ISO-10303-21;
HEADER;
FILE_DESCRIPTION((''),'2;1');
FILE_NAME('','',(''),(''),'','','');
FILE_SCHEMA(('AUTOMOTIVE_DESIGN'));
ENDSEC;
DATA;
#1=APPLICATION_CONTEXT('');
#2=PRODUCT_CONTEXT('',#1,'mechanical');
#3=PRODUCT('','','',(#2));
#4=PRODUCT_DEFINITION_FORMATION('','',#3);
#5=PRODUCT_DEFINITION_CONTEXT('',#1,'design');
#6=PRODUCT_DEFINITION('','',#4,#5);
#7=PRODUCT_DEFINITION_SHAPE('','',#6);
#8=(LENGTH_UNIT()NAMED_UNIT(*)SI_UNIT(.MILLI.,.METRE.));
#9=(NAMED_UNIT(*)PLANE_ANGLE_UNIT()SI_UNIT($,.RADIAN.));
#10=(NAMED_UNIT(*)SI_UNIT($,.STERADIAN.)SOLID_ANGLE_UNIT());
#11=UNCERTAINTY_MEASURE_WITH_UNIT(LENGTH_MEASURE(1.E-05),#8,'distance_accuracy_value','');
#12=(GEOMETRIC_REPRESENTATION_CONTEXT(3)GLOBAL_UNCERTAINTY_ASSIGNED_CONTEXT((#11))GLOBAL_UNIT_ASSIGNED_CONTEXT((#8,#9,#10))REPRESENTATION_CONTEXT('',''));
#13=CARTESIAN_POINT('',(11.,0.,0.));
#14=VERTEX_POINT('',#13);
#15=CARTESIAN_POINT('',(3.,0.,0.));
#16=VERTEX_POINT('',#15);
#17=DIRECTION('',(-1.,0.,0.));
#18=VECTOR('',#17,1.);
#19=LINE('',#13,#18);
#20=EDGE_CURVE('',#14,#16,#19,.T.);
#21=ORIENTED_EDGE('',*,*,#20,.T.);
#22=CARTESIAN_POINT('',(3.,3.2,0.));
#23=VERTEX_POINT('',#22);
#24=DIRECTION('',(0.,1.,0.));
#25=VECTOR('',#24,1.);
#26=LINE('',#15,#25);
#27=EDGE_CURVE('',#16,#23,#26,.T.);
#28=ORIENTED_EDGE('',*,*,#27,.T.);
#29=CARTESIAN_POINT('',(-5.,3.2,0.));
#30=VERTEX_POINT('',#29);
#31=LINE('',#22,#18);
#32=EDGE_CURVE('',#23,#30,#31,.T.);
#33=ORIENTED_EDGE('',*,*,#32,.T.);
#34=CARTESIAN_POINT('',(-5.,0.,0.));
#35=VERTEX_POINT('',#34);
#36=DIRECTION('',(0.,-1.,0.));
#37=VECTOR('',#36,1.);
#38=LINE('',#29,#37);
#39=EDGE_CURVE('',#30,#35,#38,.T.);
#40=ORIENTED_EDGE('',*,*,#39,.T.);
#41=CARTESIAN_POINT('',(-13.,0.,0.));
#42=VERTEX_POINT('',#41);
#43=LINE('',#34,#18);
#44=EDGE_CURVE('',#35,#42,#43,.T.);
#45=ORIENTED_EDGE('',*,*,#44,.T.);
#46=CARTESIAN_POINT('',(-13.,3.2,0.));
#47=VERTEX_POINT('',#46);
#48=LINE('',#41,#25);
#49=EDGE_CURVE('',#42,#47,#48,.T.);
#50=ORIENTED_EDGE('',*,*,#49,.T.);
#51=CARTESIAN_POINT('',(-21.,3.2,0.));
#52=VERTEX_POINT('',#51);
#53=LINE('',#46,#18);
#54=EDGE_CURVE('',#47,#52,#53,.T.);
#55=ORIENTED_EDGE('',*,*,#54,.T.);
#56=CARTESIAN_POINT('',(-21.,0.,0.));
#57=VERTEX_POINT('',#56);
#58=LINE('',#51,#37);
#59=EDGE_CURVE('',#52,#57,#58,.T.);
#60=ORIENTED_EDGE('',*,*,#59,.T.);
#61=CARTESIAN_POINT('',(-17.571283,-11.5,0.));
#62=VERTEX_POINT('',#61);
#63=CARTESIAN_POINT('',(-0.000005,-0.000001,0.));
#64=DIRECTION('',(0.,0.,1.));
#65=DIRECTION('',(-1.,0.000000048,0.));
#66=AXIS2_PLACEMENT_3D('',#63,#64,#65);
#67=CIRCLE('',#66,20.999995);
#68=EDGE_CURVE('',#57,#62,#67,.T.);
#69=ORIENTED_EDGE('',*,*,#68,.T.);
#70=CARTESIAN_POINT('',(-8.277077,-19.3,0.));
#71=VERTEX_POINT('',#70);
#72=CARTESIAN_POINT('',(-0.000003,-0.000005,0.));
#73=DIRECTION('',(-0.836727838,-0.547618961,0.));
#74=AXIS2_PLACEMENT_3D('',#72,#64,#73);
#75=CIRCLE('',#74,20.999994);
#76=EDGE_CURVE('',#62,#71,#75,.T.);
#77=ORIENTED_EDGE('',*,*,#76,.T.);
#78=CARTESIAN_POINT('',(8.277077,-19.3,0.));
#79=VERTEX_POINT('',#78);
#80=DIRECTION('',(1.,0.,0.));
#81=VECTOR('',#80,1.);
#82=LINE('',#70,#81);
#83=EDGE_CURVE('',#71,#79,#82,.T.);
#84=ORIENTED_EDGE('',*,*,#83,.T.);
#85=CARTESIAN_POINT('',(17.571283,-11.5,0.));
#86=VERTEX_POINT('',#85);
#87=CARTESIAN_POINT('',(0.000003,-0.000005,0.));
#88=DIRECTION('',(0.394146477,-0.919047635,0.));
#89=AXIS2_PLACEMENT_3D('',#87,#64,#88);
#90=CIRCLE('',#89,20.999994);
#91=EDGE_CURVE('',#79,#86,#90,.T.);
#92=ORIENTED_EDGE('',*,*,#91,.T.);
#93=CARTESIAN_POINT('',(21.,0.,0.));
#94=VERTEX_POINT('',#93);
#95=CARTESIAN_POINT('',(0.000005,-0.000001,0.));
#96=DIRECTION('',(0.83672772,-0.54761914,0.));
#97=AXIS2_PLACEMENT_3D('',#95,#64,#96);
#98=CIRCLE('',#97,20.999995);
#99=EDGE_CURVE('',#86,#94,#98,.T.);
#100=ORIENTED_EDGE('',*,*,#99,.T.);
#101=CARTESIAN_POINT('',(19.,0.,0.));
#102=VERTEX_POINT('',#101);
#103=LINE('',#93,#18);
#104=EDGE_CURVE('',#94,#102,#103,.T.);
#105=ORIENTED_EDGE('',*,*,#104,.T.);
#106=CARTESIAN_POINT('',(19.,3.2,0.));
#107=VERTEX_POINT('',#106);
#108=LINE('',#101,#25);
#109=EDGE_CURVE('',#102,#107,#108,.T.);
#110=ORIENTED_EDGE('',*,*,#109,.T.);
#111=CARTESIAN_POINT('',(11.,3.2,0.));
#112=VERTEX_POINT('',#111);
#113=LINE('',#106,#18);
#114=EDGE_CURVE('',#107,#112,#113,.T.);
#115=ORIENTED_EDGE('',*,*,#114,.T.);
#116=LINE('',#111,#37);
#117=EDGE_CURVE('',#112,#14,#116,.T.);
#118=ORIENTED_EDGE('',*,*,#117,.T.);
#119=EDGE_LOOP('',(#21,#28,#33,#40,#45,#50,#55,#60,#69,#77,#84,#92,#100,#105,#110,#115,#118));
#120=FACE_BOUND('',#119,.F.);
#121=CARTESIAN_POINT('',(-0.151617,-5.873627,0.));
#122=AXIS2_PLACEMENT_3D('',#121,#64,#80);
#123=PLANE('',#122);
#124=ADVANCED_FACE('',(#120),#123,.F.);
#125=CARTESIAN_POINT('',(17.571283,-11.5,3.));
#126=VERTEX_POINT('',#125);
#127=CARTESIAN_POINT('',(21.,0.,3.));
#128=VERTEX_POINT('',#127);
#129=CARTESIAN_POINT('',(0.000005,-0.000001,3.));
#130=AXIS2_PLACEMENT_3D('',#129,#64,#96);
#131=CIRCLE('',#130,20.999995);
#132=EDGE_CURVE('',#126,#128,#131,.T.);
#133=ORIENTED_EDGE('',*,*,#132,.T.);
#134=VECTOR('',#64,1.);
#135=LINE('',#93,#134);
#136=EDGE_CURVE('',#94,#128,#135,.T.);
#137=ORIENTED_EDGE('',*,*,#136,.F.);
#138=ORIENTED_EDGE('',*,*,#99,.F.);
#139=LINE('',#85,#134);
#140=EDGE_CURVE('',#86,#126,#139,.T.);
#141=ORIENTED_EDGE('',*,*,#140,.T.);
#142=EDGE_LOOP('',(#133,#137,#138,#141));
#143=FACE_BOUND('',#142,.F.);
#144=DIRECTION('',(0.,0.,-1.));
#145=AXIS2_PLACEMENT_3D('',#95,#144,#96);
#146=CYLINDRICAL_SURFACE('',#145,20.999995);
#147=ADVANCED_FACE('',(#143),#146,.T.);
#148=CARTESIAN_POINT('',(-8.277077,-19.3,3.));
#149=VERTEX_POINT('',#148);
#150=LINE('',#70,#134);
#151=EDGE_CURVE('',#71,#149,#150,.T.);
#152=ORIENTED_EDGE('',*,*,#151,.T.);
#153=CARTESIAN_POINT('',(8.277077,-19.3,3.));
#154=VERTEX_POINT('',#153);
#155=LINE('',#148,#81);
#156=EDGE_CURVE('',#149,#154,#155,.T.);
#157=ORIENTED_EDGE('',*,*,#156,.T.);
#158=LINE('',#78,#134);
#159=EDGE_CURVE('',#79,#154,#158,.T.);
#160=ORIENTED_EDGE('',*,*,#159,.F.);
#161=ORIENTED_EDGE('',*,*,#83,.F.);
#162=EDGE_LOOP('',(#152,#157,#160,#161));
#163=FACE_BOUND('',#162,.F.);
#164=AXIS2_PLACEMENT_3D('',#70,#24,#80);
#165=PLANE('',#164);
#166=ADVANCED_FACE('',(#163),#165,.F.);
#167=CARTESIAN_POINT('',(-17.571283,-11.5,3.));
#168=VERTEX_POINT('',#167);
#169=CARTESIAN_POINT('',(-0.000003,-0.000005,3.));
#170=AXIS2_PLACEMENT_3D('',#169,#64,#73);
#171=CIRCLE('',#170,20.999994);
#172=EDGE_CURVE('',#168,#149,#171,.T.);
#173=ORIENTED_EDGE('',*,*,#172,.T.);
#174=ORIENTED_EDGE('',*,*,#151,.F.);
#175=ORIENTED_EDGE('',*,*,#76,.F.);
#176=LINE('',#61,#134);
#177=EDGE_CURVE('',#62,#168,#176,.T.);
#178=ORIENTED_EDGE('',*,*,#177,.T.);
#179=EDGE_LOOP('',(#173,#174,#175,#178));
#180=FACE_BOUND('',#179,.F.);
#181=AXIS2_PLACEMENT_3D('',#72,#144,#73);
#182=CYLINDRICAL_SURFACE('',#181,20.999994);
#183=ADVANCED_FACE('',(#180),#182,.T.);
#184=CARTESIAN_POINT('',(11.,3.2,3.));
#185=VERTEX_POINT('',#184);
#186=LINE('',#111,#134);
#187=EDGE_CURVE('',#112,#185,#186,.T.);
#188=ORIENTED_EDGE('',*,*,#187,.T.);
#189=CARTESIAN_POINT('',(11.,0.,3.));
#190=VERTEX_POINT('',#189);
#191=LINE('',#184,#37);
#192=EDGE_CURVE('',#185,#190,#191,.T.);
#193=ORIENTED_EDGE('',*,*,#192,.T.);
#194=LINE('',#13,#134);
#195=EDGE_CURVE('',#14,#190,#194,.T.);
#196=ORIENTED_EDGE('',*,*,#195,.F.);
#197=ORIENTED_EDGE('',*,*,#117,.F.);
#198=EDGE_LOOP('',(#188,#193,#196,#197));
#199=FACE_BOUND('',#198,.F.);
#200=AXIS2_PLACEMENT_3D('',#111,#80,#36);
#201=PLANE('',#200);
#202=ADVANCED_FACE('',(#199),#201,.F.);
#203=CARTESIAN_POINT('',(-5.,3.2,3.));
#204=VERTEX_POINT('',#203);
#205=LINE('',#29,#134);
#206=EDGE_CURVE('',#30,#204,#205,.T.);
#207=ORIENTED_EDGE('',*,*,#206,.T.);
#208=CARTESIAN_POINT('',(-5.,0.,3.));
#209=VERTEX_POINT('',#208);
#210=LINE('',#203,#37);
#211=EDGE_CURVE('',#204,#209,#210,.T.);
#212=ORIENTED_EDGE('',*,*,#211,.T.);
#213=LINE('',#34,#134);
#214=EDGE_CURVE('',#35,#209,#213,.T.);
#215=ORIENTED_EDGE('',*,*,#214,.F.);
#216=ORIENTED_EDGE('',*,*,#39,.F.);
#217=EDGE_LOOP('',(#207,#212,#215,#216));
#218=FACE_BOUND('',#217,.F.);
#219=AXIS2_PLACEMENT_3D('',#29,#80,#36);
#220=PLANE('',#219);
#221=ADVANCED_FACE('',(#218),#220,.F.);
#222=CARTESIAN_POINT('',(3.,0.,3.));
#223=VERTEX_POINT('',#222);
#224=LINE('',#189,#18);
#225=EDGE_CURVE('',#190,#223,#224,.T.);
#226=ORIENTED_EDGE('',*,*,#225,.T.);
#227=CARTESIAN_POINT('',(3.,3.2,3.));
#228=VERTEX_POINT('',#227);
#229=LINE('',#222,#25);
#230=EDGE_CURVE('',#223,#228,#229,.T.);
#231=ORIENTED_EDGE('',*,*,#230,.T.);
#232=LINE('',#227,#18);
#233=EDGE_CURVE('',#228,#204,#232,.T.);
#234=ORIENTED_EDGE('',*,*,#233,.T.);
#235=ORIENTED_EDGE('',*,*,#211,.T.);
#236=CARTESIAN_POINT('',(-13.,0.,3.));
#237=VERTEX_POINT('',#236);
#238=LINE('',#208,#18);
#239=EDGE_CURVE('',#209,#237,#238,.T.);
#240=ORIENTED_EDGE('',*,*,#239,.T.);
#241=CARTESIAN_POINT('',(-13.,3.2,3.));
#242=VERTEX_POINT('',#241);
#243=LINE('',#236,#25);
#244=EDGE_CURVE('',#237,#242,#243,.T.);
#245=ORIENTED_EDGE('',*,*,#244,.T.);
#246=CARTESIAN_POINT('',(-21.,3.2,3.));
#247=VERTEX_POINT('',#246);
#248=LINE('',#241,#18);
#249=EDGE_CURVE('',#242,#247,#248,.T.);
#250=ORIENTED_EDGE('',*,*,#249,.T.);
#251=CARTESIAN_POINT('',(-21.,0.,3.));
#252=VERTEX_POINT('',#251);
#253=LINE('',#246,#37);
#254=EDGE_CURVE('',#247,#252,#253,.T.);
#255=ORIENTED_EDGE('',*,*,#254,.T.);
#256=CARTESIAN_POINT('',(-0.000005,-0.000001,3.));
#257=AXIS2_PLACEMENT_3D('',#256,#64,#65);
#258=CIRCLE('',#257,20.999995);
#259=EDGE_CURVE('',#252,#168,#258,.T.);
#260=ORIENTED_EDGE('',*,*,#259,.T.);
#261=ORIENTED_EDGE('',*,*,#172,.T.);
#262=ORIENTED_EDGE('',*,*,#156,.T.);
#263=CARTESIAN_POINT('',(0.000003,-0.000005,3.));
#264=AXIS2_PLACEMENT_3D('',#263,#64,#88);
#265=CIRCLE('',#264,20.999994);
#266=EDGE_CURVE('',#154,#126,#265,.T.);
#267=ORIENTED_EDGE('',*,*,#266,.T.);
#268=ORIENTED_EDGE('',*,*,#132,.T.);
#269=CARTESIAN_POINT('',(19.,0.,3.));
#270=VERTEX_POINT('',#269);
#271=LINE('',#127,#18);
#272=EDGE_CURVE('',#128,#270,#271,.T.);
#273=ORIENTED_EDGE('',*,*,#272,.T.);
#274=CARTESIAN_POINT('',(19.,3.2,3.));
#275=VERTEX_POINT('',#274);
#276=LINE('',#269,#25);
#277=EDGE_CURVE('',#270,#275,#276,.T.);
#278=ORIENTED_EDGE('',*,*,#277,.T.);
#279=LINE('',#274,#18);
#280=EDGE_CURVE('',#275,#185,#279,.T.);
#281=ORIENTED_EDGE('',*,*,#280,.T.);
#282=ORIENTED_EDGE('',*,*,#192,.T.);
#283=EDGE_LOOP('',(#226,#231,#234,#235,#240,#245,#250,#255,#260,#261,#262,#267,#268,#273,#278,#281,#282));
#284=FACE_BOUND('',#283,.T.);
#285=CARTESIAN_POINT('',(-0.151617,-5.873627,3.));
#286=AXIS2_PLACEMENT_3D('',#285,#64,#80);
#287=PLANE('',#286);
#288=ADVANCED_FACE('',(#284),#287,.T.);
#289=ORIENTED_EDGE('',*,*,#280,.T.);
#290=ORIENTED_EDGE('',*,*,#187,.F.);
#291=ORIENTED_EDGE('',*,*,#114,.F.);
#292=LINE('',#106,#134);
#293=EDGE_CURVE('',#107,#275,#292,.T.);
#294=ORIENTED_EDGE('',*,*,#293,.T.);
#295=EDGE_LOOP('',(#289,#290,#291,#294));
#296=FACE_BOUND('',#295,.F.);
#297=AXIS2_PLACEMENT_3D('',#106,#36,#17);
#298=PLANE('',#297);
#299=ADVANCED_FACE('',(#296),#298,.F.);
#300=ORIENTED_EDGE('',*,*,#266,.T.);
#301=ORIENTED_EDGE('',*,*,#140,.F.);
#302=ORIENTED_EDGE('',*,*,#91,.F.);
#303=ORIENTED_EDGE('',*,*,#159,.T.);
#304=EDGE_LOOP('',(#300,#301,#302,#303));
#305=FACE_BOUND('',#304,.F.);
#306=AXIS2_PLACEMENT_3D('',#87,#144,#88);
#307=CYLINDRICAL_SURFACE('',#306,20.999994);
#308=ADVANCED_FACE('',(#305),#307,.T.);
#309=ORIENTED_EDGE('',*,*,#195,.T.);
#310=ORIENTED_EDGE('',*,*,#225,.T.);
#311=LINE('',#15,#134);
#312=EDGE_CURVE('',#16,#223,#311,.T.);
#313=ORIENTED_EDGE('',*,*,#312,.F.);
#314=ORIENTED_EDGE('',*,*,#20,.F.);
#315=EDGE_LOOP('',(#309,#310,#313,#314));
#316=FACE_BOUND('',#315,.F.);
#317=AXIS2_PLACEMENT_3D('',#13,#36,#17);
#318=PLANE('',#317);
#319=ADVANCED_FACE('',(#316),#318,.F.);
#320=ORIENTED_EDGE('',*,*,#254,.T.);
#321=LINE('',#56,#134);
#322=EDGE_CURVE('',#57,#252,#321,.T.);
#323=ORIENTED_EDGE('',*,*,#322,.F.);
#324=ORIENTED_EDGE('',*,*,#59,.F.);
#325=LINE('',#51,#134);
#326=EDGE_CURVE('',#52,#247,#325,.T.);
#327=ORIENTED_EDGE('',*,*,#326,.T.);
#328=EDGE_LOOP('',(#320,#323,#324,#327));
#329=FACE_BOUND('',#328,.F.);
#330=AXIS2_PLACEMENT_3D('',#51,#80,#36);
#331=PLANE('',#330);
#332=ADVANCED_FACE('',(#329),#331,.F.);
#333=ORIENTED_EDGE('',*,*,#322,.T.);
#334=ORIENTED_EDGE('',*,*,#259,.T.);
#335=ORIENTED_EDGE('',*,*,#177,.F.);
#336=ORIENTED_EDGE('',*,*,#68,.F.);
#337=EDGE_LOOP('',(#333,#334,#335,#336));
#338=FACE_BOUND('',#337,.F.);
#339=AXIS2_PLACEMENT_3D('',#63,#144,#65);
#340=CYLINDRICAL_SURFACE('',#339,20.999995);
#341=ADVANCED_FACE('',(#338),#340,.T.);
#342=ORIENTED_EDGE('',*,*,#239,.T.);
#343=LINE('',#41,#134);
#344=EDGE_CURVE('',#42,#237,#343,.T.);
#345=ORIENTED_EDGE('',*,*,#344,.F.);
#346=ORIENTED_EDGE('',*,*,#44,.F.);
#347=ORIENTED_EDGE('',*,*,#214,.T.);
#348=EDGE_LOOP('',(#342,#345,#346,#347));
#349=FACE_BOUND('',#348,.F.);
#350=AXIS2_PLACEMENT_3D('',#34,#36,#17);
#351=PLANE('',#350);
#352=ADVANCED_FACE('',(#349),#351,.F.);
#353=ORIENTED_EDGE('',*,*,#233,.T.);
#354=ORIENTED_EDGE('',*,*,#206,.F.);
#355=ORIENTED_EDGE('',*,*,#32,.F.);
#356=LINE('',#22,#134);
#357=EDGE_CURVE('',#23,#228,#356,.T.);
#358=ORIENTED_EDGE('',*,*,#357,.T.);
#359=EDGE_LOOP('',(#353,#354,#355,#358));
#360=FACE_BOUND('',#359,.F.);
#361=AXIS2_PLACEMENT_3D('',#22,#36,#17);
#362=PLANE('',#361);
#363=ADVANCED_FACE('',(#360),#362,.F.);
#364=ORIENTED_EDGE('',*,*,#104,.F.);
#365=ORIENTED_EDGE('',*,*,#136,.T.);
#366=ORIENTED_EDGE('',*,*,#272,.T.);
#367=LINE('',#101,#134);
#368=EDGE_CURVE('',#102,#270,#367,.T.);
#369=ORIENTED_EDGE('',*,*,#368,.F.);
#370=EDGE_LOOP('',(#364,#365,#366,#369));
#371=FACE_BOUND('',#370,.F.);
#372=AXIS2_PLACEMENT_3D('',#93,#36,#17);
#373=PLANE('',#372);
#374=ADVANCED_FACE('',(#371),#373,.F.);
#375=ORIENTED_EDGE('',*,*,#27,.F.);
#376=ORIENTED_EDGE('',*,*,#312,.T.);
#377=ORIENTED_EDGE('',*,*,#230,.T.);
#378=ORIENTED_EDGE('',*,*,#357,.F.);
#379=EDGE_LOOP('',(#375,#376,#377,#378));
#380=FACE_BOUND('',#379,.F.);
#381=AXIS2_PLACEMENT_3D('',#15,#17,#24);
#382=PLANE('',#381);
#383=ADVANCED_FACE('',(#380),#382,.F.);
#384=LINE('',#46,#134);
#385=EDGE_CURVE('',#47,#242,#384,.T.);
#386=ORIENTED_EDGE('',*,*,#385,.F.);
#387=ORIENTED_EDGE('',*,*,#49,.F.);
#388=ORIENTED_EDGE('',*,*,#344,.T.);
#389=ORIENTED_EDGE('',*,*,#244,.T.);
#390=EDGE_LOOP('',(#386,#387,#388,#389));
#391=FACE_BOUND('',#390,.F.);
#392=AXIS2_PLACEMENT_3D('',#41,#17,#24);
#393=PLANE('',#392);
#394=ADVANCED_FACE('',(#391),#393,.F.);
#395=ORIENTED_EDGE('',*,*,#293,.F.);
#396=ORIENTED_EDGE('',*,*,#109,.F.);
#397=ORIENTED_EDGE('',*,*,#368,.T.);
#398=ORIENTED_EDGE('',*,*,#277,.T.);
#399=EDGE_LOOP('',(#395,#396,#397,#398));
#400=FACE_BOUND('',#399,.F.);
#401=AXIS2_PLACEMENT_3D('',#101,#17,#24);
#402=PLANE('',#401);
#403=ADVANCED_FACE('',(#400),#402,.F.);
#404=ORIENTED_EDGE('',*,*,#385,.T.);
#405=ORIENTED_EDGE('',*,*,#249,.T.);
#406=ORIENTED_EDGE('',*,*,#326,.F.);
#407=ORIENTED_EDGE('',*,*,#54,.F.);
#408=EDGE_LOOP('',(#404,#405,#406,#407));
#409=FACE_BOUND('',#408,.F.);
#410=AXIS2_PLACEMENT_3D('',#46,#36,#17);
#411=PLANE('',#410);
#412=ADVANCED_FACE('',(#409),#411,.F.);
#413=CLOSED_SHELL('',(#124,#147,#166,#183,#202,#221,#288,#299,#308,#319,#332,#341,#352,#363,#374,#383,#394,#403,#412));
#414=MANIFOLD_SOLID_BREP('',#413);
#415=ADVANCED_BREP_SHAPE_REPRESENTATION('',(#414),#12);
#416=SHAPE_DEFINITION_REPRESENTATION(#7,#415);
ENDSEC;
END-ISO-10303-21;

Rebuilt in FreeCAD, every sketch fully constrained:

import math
import FreeCAD as App
import Part
import Sketcher
Q = App.Units.Quantity

doc = App.newDocument("Part")
body = doc.addObject("PartDesign::Body", "Body")

sketch1 = doc.addObject("Sketcher::SketchObject", "Sketch")
body.addObject(sketch1)
sketch1.AttachmentSupport = (doc.XY_Plane, [""])
sketch1.MapMode = "FlatFace"
sketch1.addGeometry([
    Part.LineSegment(App.Vector(-21, 3.2, 0), App.Vector(-21, 0, 0)),
    Part.ArcOfCircle(Part.Circle(App.Vector(0, 0, 0), App.Vector(0, 0, 1), 21), math.radians(180), math.radians(213)),
    Part.ArcOfCircle(Part.Circle(App.Vector(0, 0, 0), App.Vector(0, 0, 1), 21), math.radians(-147), math.radians(-113)),
    Part.LineSegment(App.Vector(-8.3, -19.3, 0), App.Vector(8.3, -19.3, 0)),
    Part.ArcOfCircle(Part.Circle(App.Vector(0, 0, 0), App.Vector(0, 0, 1), 21), math.radians(-67), math.radians(-33)),
    Part.ArcOfCircle(Part.Circle(App.Vector(0, 0, 0), App.Vector(0, 0, 1), 21), math.radians(-33), math.radians(0)),
    Part.LineSegment(App.Vector(21, 0, 0), App.Vector(19, 0, 0)),
    Part.LineSegment(App.Vector(19, 0, 0), App.Vector(19, 3.2, 0)),
    Part.LineSegment(App.Vector(19, 3.2, 0), App.Vector(11, 3.2, 0)),
    Part.LineSegment(App.Vector(11, 3.2, 0), App.Vector(11, 0, 0)),
    Part.LineSegment(App.Vector(11, 0, 0), App.Vector(3, 0, 0)),
    Part.LineSegment(App.Vector(3, 0, 0), App.Vector(3, 3.2, 0)),
    Part.LineSegment(App.Vector(3, 3.2, 0), App.Vector(-5, 3.2, 0)),
    Part.LineSegment(App.Vector(-5, 3.2, 0), App.Vector(-5, 0, 0)),
    Part.LineSegment(App.Vector(-5, 0, 0), App.Vector(-13, 0, 0)),
    Part.LineSegment(App.Vector(-13, 0, 0), App.Vector(-13, 3.2, 0)),
    Part.LineSegment(App.Vector(-13, 3.2, 0), App.Vector(-21, 3.2, 0)),
], False)
sketch1.addConstraint([
    Sketcher.Constraint("Tangent", 0, 2, 1, 1),
    Sketcher.Constraint("Tangent", 1, 2, 2, 1),
    Sketcher.Constraint("Coincident", 2, 2, 3, 1),
    Sketcher.Constraint("Coincident", 3, 2, 4, 1),
    Sketcher.Constraint("Tangent", 4, 2, 5, 1),
    Sketcher.Constraint("Coincident", 5, 2, 6, 1),
    Sketcher.Constraint("Coincident", 6, 2, 7, 1),
    Sketcher.Constraint("Coincident", 7, 2, 8, 1),
    Sketcher.Constraint("Coincident", 8, 2, 9, 1),
    Sketcher.Constraint("Coincident", 9, 2, 10, 1),
    Sketcher.Constraint("Coincident", 10, 2, 11, 1),
    Sketcher.Constraint("Coincident", 11, 2, 12, 1),
    Sketcher.Constraint("Coincident", 12, 2, 13, 1),
    Sketcher.Constraint("Coincident", 13, 2, 14, 1),
    Sketcher.Constraint("Coincident", 14, 2, 15, 1),
    Sketcher.Constraint("Coincident", 15, 2, 16, 1),
    Sketcher.Constraint("Coincident", 16, 2, 0, 1),
    Sketcher.Constraint("Vertical", 0),
    Sketcher.Constraint("Horizontal", 3),
    Sketcher.Constraint("Horizontal", 6),
    Sketcher.Constraint("Vertical", 7),
    Sketcher.Constraint("Horizontal", 8),
    Sketcher.Constraint("Vertical", 9),
    Sketcher.Constraint("Horizontal", 10),
    Sketcher.Constraint("Vertical", 11),
    Sketcher.Constraint("Horizontal", 12),
    Sketcher.Constraint("Vertical", 13),
    Sketcher.Constraint("Horizontal", 14),
    Sketcher.Constraint("Vertical", 15),
    Sketcher.Constraint("Horizontal", 16),
    Sketcher.Constraint("Coincident", 1, 3, -1, 1),
    Sketcher.Constraint("Coincident", 4, 3, -1, 1),
    Sketcher.Constraint("Coincident", 5, 3, 2, 3),
    Sketcher.Constraint("Equal", 2, 4),
    Sketcher.Constraint("PointOnObject", 5, 2, -1),
    Sketcher.Constraint("PointOnObject", 9, 2, -1),
    Sketcher.Constraint("PointOnObject", 13, 2, -1),
    Sketcher.Constraint("Horizontal", 1, 2, 4, 2),
    Sketcher.Constraint("Horizontal", 8, 2, 11, 2),
    Sketcher.Constraint("Horizontal", 12, 2, 15, 2),
    Sketcher.Constraint("Equal", 8, 10),
    Sketcher.Constraint("Equal", 10, 12),
    Sketcher.Constraint("Equal", 12, 14),
    Sketcher.Constraint("Equal", 14, 16),
    Sketcher.Constraint("DistanceX", 6, 2, 6, 1, Q("2 mm")),
    Sketcher.Constraint("DistanceX", 8, 2, 8, 1, Q("8 mm")),
    Sketcher.Constraint("DistanceY", 0, 2, 0, 1, Q("3.2 mm")),
    Sketcher.Constraint("DistanceY", 1, 2, -1, 1, Q("11.5 mm")),
    Sketcher.Constraint("DistanceY", 2, 2, -1, 1, Q("19.3 mm")),
])
pad1 = doc.addObject("PartDesign::Pad", "Pad")
body.addObject(pad1)
pad1.Profile = sketch1
pad1.Length = 3

doc.recompute()
